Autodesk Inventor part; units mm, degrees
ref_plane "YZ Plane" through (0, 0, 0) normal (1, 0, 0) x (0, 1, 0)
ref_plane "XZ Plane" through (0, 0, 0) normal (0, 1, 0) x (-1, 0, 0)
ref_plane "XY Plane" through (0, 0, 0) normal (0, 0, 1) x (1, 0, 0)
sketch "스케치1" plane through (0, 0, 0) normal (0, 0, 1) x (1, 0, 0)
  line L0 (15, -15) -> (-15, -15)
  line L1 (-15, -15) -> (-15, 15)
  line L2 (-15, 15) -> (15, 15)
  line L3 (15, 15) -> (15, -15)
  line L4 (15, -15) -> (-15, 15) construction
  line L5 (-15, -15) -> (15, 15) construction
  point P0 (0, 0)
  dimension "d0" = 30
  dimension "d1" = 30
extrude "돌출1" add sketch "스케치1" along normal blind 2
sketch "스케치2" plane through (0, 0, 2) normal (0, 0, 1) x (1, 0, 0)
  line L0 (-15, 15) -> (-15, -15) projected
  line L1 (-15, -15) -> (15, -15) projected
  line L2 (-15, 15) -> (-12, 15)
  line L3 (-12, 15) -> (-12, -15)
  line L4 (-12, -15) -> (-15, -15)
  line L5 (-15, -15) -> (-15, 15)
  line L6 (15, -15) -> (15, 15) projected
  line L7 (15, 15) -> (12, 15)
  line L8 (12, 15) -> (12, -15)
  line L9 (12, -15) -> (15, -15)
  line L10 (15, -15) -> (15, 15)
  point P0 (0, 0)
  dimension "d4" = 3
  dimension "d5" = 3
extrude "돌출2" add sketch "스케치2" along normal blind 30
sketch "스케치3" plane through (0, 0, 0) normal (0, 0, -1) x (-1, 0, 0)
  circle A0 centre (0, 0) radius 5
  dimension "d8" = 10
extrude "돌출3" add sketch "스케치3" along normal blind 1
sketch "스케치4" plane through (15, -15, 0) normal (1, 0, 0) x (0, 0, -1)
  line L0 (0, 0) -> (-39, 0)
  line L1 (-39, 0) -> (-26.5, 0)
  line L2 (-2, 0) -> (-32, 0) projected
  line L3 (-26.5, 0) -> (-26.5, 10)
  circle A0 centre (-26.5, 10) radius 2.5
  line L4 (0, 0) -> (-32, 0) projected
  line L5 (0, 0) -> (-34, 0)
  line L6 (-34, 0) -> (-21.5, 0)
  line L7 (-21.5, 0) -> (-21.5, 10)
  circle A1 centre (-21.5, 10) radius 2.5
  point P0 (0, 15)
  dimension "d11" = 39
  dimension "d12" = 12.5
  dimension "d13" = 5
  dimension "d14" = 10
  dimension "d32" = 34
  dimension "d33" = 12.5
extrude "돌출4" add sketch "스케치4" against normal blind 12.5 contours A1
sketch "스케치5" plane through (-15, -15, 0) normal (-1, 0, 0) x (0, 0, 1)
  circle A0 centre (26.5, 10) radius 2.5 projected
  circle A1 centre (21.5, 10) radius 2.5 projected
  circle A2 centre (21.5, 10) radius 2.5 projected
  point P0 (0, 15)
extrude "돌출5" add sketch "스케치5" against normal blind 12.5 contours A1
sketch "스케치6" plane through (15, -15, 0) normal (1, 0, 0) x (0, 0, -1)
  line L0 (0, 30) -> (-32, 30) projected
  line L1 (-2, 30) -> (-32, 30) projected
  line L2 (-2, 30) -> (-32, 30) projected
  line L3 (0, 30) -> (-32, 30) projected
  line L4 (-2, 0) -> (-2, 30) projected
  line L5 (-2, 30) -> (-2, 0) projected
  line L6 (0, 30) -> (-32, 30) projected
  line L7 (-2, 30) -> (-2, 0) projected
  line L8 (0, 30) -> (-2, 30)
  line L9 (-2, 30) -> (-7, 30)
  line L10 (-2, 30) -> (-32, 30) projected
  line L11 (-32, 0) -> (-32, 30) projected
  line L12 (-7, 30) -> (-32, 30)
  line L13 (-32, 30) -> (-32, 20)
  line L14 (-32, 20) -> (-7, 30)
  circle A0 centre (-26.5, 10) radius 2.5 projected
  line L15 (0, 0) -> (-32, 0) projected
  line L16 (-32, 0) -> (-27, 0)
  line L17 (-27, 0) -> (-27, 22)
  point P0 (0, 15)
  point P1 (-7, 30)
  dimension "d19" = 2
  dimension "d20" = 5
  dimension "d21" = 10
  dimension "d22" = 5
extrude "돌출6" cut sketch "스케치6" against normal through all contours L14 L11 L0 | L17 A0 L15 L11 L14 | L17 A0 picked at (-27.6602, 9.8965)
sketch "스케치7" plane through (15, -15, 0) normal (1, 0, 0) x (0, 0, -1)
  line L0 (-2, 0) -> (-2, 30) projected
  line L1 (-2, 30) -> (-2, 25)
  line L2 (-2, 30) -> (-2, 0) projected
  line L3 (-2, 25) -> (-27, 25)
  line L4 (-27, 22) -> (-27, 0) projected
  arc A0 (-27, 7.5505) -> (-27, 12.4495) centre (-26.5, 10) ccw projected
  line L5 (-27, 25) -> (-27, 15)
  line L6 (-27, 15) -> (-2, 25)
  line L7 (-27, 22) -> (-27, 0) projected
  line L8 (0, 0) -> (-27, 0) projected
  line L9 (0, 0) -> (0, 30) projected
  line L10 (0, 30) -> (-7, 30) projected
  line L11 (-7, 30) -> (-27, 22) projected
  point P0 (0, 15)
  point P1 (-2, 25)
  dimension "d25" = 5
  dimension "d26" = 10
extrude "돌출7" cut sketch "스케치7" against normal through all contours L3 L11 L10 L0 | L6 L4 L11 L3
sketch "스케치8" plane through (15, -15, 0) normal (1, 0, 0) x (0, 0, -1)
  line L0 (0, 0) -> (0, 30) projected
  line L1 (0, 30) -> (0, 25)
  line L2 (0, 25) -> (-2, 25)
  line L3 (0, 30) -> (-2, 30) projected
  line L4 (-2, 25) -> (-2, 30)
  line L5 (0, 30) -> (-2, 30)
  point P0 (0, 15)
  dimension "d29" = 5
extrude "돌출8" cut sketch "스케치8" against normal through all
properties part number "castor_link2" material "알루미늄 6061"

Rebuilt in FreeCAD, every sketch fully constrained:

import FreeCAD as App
import Part
import Sketcher
from FreeCAD import Vector

doc = App.newDocument("Part")
body = doc.addObject("PartDesign::Body", "Body")

# Sketch on XY plane
sketch1 = doc.addObject("Sketcher::SketchObject", "Sketch")
body.addObject(sketch1)
sketch1.AttachmentSupport = (doc.XY_Plane, [""])
sketch1.MapMode = "FlatFace"
sketch1.addGeometry(Part.LineSegment(Vector(-15, -15, 0), Vector(15, -15, 0)), False)
sketch1.addGeometry(Part.LineSegment(Vector(15, -15, 0), Vector(15, 15, 0)), False)
sketch1.addGeometry(Part.LineSegment(Vector(15, 15, 0), Vector(-15, 15, 0)), False)
sketch1.addGeometry(Part.LineSegment(Vector(-15, 15, 0), Vector(-15, -15, 0)), False)
sketch1.addConstraint(Sketcher.Constraint("Coincident", 0, 2, 1, 1))
sketch1.addConstraint(Sketcher.Constraint("Coincident", 1, 2, 2, 1))
sketch1.addConstraint(Sketcher.Constraint("Coincident", 2, 2, 3, 1))
sketch1.addConstraint(Sketcher.Constraint("Coincident", 3, 2, 0, 1))
sketch1.addConstraint(Sketcher.Constraint("Horizontal", 0))
sketch1.addConstraint(Sketcher.Constraint("Vertical", 1))
sketch1.addConstraint(Sketcher.Constraint("Horizontal", 2))
sketch1.addConstraint(Sketcher.Constraint("Vertical", 3))
sketch1.addConstraint(Sketcher.Constraint("Symmetric", 0, 2, 2, 2, -1, 1))
sketch1.addConstraint(Sketcher.Constraint("Equal", 2, 1))
sketch1.addConstraint(Sketcher.Constraint("DistanceX", 0, 1, 0, 2, 30.0))
pad1 = doc.addObject("PartDesign::Pad", "Pad")
body.addObject(pad1)
pad1.Profile = sketch1
pad1.Length = 2

# Sketch on XY plane
sketch2 = doc.addObject("Sketcher::SketchObject", "Sketch001")
body.addObject(sketch2)
sketch2.AttachmentSupport = (doc.XY_Plane, [""])
sketch2.MapMode = "FlatFace"
sketch2.AttachmentOffset = App.Placement(Vector(0, 0, 2), App.Rotation())
sketch2.addGeometry(Part.LineSegment(Vector(-12, 15, 0), Vector(-15, 15, 0)), False)
sketch2.addGeometry(Part.LineSegment(Vector(-15, 15, 0), Vector(-15, -15, 0)), False)
sketch2.addGeometry(Part.LineSegment(Vector(-15, -15, 0), Vector(-12, -15, 0)), False)
sketch2.addGeometry(Part.LineSegment(Vector(-12, -15, 0), Vector(-12, 15, 0)), False)
sketch2.addGeometry(Part.LineSegment(Vector(12, 15, 0), Vector(12, -15, 0)), False)
sketch2.addGeometry(Part.LineSegment(Vector(12, -15, 0), Vector(15, -15, 0)), False)
sketch2.addGeometry(Part.LineSegment(Vector(15, -15, 0), Vector(15, 15, 0)), False)
sketch2.addGeometry(Part.LineSegment(Vector(15, 15, 0), Vector(12, 15, 0)), False)
sketch2.addConstraint(Sketcher.Constraint("Coincident", 0, 2, 1, 1))
sketch2.addConstraint(Sketcher.Constraint("Coincident", 1, 2, 2, 1))
sketch2.addConstraint(Sketcher.Constraint("Coincident", 2, 2, 3, 1))
sketch2.addConstraint(Sketcher.Constraint("Coincident", 3, 2, 0, 1))
sketch2.addConstraint(Sketcher.Constraint("Coincident", 4, 2, 5, 1))
sketch2.addConstraint(Sketcher.Constraint("Coincident", 5, 2, 6, 1))
sketch2.addConstraint(Sketcher.Constraint("Coincident", 6, 2, 7, 1))
sketch2.addConstraint(Sketcher.Constraint("Coincident", 7, 2, 4, 1))
sketch2.addConstraint(Sketcher.Constraint("Horizontal", 0))
sketch2.addConstraint(Sketcher.Constraint("Vertical", 1))
sketch2.addConstraint(Sketcher.Constraint("Horizontal", 2))
sketch2.addConstraint(Sketcher.Constraint("Vertical", 3))
sketch2.addConstraint(Sketcher.Constraint("Vertical", 4))
sketch2.addConstraint(Sketcher.Constraint("Horizontal", 5))
sketch2.addConstraint(Sketcher.Constraint("Vertical", 6))
sketch2.addConstraint(Sketcher.Constraint("Horizontal", 7))
sketch2.addConstraint(Sketcher.Constraint("Symmetric", 3, 2, 4, 2, -1, 1))
sketch2.addConstraint(Sketcher.Constraint("Symmetric", 1, 2, 6, 2, -1, 1))
sketch2.addConstraint(Sketcher.Constraint("Horizontal", 2, 2, 4, 2))
sketch2.addConstraint(Sketcher.Constraint("DistanceX", 0, 2, 0, 1, 3.0))
sketch2.addConstraint(Sketcher.Constraint("DistanceY", 1, 2, 1, 1, 30.0))
sketch2.addConstraint(Sketcher.Constraint("DistanceX", 0, 2, -1, 1, 15.0))
pad2 = doc.addObject("PartDesign::Pad", "Pad001")
body.addObject(pad2)
pad2.Profile = sketch2
pad2.Length = 30

# Sketch on XY plane
sketch3 = doc.addObject("Sketcher::SketchObject", "Sketch002")
body.addObject(sketch3)
sketch3.AttachmentSupport = (doc.XY_Plane, [""])
sketch3.MapMode = "FlatFace"
sketch3.addGeometry(Part.Circle(Vector(0, 0, 0), Vector(0, 0, 1), 5), False)
sketch3.addConstraint(Sketcher.Constraint("Coincident", 0, 3, -1, 1))
sketch3.addConstraint(Sketcher.Constraint("Diameter", 0, 10.0))
pad3 = doc.addObject("PartDesign::Pad", "Pad002")
body.addObject(pad3)
pad3.Profile = sketch3
pad3.Length = 1
pad3.Reversed = True

# Sketch on YZ plane
sketch4 = doc.addObject("Sketcher::SketchObject", "Sketch003")
body.addObject(sketch4)
sketch4.AttachmentSupport = (doc.YZ_Plane, [""])
sketch4.MapMode = "FlatFace"
sketch4.AttachmentOffset = App.Placement(Vector(0, 0, 15), App.Rotation())
sketch4.addGeometry(Part.Circle(Vector(-5, 21.5, 0), Vector(0, 0, 1), 2.5), False)
sketch4.addConstraint(Sketcher.Constraint("Diameter", 0, 5.0))
sketch4.addConstraint(Sketcher.Constraint("DistanceX", 0, 3, -1, 1, 5.0))
sketch4.addConstraint(Sketcher.Constraint("DistanceY", -1, 1, 0, 3, 21.5))
pad4 = doc.addObject("PartDesign::Pad", "Pad003")
body.addObject(pad4)
pad4.Profile = sketch4
pad4.Length = 12.5
pad4.Reversed = True

# Sketch on YZ plane
sketch5 = doc.addObject("Sketcher::SketchObject", "Sketch004")
body.addObject(sketch5)
sketch5.AttachmentSupport = (doc.YZ_Plane, [""])
sketch5.MapMode = "FlatFace"
sketch5.AttachmentOffset = App.Placement(Vector(0, 0, -15), App.Rotation())
sketch5.addGeometry(Part.Circle(Vector(-5, 21.5, 0), Vector(0, 0, 1), 2.5), False)
sketch5.addConstraint(Sketcher.Constraint("Diameter", 0, 5.0))
sketch5.addConstraint(Sketcher.Constraint("DistanceX", 0, 3, -1, 1, 5.0))
sketch5.addConstraint(Sketcher.Constraint("DistanceY", -1, 1, 0, 3, 21.5))
pad5 = doc.addObject("PartDesign::Pad", "Pad004")
body.addObject(pad5)
pad5.Profile = sketch5
pad5.Length = 12.5

# Sketch on YZ plane
sketch6 = doc.addObject("Sketcher::SketchObject", "Sketch005")
body.addObject(sketch6)
sketch6.AttachmentSupport = (doc.YZ_Plane, [""])
sketch6.MapMode = "FlatFace"
sketch6.AttachmentOffset = App.Placement(Vector(0, 0, 15), App.Rotation())
sketch6.addGeometry(Part.LineSegment(Vector(7, 27, 0), Vector(15, 7, 0)), False)
sketch6.addGeometry(Part.LineSegment(Vector(15, 7, 0), Vector(15, 32, 0)), False)
sketch6.addGeometry(Part.LineSegment(Vector(15, 32, 0), Vector(-15, 32, 0)), False)
sketch6.addGeometry(Part.LineSegment(Vector(-15, 32, 0), Vector(-15, 27, 0)), False)
sketch6.addGeometry(Part.LineSegment(Vector(-15, 27, 0), Vector(7, 27, 0)), False)
sketch6.addConstraint(Sketcher.Constraint("Coincident", 0, 2, 1, 1))
sketch6.addConstraint(Sketcher.Constraint("Coincident", 1, 2, 2, 1))
sketch6.addConstraint(Sketcher.Constraint("Coincident", 2, 2, 3, 1))
sketch6.addConstraint(Sketcher.Constraint("Coincident", 3, 2, 4, 1))
sketch6.addConstraint(Sketcher.Constraint("Coincident", 4, 2, 0, 1))
sketch6.addConstraint(Sketcher.Constraint("Vertical", 1))
sketch6.addConstraint(Sketcher.Constraint("Horizontal", 2))
sketch6.addConstraint(Sketcher.Constraint("Vertical", 3))
sketch6.addConstraint(Sketcher.Constraint("Horizontal", 4))
sketch6.addConstraint(Sketcher.Constraint("DistanceY", 3, 2, 3, 1, 5.0))
sketch6.addConstraint(Sketcher.Constraint("DistanceX", 2, 2, 2, 1, 30.0))
sketch6.addConstraint(Sketcher.Constraint("DistanceX", 4, 1, 4, 2, 22.0))
sketch6.addConstraint(Sketcher.Constraint("DistanceY", 1, 1, 1, 2, 25.0))
sketch6.addConstraint(Sketcher.Constraint("DistanceX", -1, 1, 0, 2, 15.0))
sketch6.addConstraint(Sketcher.Constraint("DistanceY", -1, 1, 0, 2, 7.0))
pocket1 = doc.addObject("PartDesign::Pocket", "Pocket")
body.addObject(pocket1)
pocket1.Profile = sketch6
pocket1.Type = "ThroughAll"

# Sketch on YZ plane
sketch7 = doc.addObject("Sketcher::SketchObject", "Sketch006")
body.addObject(sketch7)
sketch7.AttachmentSupport = (doc.YZ_Plane, [""])
sketch7.MapMode = "FlatFace"
sketch7.AttachmentOffset = App.Placement(Vector(0, 0, 15), App.Rotation())
sketch7.addGeometry(Part.LineSegment(Vector(15, 7, 0), Vector(7, 27, 0)), False)
sketch7.addGeometry(Part.LineSegment(Vector(7, 27, 0), Vector(0, 27, 0)), False)
sketch7.addGeometry(Part.LineSegment(Vector(0, 27, 0), Vector(10, 2, 0)), False)
sketch7.addGeometry(Part.LineSegment(Vector(10, 2, 0), Vector(15, 2, 0)), False)
sketch7.addGeometry(Part.LineSegment(Vector(15, 2, 0), Vector(15, 7, 0)), False)
sketch7.addConstraint(Sketcher.Constraint("Coincident", 0, 2, 1, 1))
sketch7.addConstraint(Sketcher.Constraint("Coincident", 1, 2, 2, 1))
sketch7.addConstraint(Sketcher.Constraint("Coincident", 2, 2, 3, 1))
sketch7.addConstraint(Sketcher.Constraint("Coincident", 3, 2, 4, 1))
sketch7.addConstraint(Sketcher.Constraint("Coincident", 4, 2, 0, 1))
sketch7.addConstraint(Sketcher.Constraint("Horizontal", 1))
sketch7.addConstraint(Sketcher.Constraint("Horizontal", 3))
sketch7.addConstraint(Sketcher.Constraint("Vertical", 4))
sketch7.addConstraint(Sketcher.Constraint("PointOnObject", 1, 2, -2))
sketch7.addConstraint(Sketcher.Constraint("Parallel", 0, 2))
sketch7.addConstraint(Sketcher.Constraint("Equal", 3, 4))
sketch7.addConstraint(Sketcher.Constraint("DistanceX", 3, 1, 3, 2, 5.0))
sketch7.addConstraint(Sketcher.Constraint("DistanceX", -1, 1, 2, 2, 10.0))
sketch7.addConstraint(Sketcher.Constraint("DistanceX", 1, 2, 1, 1, 7.0))
sketch7.addConstraint(Sketcher.Constraint("DistanceY", -1, 1, 0, 2, 27.0))
pocket2 = doc.addObject("PartDesign::Pocket", "Pocket001")
body.addObject(pocket2)
pocket2.Profile = sketch7
pocket2.Type = "ThroughAll"

# Sketch on YZ plane
sketch8 = doc.addObject("Sketcher::SketchObject", "Sketch007")
body.addObject(sketch8)
sketch8.AttachmentSupport = (doc.YZ_Plane, [""])
sketch8.MapMode = "FlatFace"
sketch8.AttachmentOffset = App.Placement(Vector(0, 0, 15), App.Rotation())
sketch8.addGeometry(Part.LineSegment(Vector(10, 2, 0), Vector(10, 0, 0)), False)
sketch8.addGeometry(Part.LineSegment(Vector(10, 0, 0), Vector(15, 0, 0)), False)
sketch8.addGeometry(Part.LineSegment(Vector(15, 0, 0), Vector(15, 2, 0)), False)
sketch8.addGeometry(Part.LineSegment(Vector(15, 2, 0), Vector(10, 2, 0)), False)
sketch8.addConstraint(Sketcher.Constraint("Coincident", 0, 2, 1, 1))
sketch8.addConstraint(Sketcher.Constraint("Coincident", 1, 2, 2, 1))
sketch8.addConstraint(Sketcher.Constraint("Coincident", 2, 2, 3, 1))
sketch8.addConstraint(Sketcher.Constraint("Coincident", 3, 2, 0, 1))
sketch8.addConstraint(Sketcher.Constraint("Vertical", 0))
sketch8.addConstraint(Sketcher.Constraint("Horizontal", 1))
sketch8.addConstraint(Sketcher.Constraint("Vertical", 2))
sketch8.addConstraint(Sketcher.Constraint("Horizontal", 3))
sketch8.addConstraint(Sketcher.Constraint("PointOnObject", 0, 2, -1))
sketch8.addConstraint(Sketcher.Constraint("DistanceX", 1, 1, 1, 2, 5.0))
sketch8.addConstraint(Sketcher.Constraint("DistanceY", 0, 2, 0, 1, 2.0))
sketch8.addConstraint(Sketcher.Constraint("DistanceX", -1, 1, 0, 2, 10.0))
pocket3 = doc.addObject("PartDesign::Pocket", "Pocket002")
body.addObject(pocket3)
pocket3.Profile = sketch8
pocket3.Type = "ThroughAll"

doc.recompute()
